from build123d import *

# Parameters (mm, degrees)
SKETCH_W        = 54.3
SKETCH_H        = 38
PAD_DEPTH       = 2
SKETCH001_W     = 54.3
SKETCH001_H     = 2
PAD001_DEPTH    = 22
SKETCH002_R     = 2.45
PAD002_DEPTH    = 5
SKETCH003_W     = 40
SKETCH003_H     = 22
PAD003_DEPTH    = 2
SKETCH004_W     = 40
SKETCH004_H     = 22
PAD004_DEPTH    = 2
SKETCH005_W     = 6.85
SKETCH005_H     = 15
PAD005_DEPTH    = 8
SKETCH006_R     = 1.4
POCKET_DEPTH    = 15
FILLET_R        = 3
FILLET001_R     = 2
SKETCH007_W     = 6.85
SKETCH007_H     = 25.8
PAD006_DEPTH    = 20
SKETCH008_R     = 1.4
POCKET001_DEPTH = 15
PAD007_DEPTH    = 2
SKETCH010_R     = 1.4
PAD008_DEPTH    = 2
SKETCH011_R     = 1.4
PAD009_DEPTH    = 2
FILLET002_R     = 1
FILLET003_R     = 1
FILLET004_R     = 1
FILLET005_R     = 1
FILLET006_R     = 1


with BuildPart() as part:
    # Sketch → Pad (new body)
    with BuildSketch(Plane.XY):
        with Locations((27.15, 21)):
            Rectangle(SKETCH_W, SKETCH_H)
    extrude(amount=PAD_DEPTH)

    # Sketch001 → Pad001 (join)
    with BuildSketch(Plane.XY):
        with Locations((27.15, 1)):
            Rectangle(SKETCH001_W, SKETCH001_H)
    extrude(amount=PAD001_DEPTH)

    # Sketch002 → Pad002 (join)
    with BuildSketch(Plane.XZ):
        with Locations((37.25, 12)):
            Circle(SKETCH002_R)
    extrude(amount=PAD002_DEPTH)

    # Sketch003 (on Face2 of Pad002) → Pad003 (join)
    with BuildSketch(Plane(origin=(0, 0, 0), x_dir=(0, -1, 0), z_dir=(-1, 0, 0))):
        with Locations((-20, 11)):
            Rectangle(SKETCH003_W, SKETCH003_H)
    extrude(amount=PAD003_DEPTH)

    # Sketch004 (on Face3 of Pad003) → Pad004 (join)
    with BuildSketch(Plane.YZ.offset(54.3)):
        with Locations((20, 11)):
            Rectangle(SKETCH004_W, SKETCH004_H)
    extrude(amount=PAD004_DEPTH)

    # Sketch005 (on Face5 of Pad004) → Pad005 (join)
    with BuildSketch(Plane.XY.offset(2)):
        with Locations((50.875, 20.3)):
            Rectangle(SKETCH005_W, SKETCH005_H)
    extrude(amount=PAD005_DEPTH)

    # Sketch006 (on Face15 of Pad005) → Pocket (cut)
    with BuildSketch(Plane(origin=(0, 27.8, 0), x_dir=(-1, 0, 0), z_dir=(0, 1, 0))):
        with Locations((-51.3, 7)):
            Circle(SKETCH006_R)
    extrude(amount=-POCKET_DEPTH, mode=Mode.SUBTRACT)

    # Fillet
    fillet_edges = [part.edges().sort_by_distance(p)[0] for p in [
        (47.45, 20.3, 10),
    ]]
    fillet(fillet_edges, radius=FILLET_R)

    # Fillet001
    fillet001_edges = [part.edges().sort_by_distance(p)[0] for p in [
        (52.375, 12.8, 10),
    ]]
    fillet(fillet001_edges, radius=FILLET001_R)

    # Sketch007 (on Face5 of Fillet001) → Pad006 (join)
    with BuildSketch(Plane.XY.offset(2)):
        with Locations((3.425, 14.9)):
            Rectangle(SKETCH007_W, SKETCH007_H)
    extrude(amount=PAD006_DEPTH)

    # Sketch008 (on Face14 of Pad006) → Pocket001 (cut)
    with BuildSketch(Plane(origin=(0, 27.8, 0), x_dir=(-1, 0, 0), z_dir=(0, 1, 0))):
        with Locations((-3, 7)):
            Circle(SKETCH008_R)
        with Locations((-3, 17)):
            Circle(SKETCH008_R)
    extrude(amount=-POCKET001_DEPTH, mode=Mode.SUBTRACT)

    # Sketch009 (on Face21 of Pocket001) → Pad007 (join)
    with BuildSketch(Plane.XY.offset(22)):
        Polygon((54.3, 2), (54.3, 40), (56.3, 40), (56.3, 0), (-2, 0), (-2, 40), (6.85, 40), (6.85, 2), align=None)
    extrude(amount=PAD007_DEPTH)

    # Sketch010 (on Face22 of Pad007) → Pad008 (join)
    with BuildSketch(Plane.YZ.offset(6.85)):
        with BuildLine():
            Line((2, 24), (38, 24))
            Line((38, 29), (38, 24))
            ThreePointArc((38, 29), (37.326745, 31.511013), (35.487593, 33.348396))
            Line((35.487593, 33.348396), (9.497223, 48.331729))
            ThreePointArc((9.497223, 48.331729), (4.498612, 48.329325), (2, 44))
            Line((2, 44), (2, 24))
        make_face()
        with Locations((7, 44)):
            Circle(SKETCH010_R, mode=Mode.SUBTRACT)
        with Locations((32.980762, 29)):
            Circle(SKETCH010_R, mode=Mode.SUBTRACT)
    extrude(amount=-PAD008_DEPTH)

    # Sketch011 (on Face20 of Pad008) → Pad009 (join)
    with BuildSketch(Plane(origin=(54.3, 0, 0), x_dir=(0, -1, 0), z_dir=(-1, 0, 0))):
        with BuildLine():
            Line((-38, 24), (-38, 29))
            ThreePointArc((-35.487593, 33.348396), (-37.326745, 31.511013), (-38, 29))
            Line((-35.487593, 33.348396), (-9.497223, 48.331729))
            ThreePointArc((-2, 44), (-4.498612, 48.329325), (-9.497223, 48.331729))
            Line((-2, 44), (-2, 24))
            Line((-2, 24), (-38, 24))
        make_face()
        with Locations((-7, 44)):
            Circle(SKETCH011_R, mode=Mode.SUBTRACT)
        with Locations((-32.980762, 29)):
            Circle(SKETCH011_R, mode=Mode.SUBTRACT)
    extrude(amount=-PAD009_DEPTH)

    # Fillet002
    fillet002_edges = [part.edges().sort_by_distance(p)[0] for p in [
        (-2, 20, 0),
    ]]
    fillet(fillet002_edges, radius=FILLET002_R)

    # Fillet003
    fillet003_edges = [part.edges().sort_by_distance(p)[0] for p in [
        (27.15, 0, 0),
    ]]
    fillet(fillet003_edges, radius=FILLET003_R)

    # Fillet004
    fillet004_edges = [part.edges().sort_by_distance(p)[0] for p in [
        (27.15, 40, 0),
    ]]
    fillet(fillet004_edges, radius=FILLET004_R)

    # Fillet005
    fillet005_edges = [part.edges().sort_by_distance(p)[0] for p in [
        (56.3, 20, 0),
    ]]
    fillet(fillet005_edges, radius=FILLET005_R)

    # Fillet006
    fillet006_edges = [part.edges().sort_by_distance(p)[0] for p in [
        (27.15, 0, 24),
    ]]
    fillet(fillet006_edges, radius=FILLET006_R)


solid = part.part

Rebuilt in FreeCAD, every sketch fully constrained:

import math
import FreeCAD as App
import Part
import Sketcher

V = App.Vector


def edges_at(feature, points):
    """Names of the edges that pass closest to the given points."""
    edges = feature.Shape.Edges
    near = lambda p: min(range(len(edges)), key=lambda i: edges[i].distToShape(Part.Vertex(*p))[0])
    return sorted({f"Edge{near(p) + 1}" for p in points})


def add_polygon(sketch, points):
    """Adds a closed chain of lines whose ends are joined by coincident constraints."""
    first, n = sketch.GeometryCount, len(points)
    for a, b in zip(points, points[1:] + points[:1]):
        sketch.addGeometry(Part.LineSegment(App.Vector(*a, 0), App.Vector(*b, 0)), False)
    for i in range(n):
        sketch.addConstraint(Sketcher.Constraint("Coincident", first + i, 2, first + (i + 1) % n, 1))

doc = App.newDocument("Part")
body = doc.addObject("PartDesign::Body", "Body")

# Sketch on XY plane
sketch1 = body.newObject("Sketcher::SketchObject", "Sketch")
sketch1.AttachmentSupport = (doc.getObject("XY_Plane"), [""])
sketch1.MapMode = "FlatFace"
add_polygon(sketch1, [(0, 40), (0, 2), (54, 2), (54, 40)])  # lines 0-3
sketch1.addConstraint(Sketcher.Constraint("Vertical", 0))
sketch1.addConstraint(Sketcher.Constraint("Horizontal", 1))
sketch1.addConstraint(Sketcher.Constraint("Vertical", 2))
sketch1.addConstraint(Sketcher.Constraint("Horizontal", 3))
sketch1.addConstraint(Sketcher.Constraint("PointOnObject", 0, 2, -2))
sketch1.addConstraint(Sketcher.Constraint("DistanceY", 0, 2, 0, 1, 38.0))
sketch1.addConstraint(Sketcher.Constraint("DistanceX", 1, 1, 1, 2, 54.3))
sketch1.addConstraint(Sketcher.Constraint("DistanceY", -1, 1, 0, 2, 2.0))
pad1 = body.newObject("PartDesign::Pad", "Pad")
pad1.Profile = sketch1
pad1.Length = 2

# Sketch on XY plane
sketch2 = body.newObject("Sketcher::SketchObject", "Sketch001")
sketch2.AttachmentSupport = (doc.getObject("XY_Plane"), [""])
sketch2.MapMode = "FlatFace"
add_polygon(sketch2, [(0, 2), (0, 0), (54.3, 0), (54.3, 2)])  # lines 0-3
sketch2.addConstraint(Sketcher.Constraint("Vertical", 0))
sketch2.addConstraint(Sketcher.Constraint("Horizontal", 1))
sketch2.addConstraint(Sketcher.Constraint("Vertical", 2))
sketch2.addConstraint(Sketcher.Constraint("Horizontal", 3))
sketch2.addConstraint(Sketcher.Constraint("Coincident", 0, 2, -1, 1))
sketch2.addConstraint(Sketcher.Constraint("DistanceY", 0, 2, 0, 1, 2.0))
sketch2.addConstraint(Sketcher.Constraint("DistanceX", 1, 1, 1, 2, 54.3))
pad2 = body.newObject("PartDesign::Pad", "Pad001")
pad2.Profile = sketch2
pad2.Length = 22

# Sketch on XZ plane
sketch3 = body.newObject("Sketcher::SketchObject", "Sketch002")
sketch3.AttachmentSupport = (doc.getObject("XZ_Plane"), [""])
sketch3.MapMode = "FlatFace"
sketch3.addGeometry(Part.Circle(V(37.2, 12, 0), V(0, 0, 1), 2.5), False)
sketch3.addConstraint(Sketcher.Constraint("Diameter", 0, 4.9))
sketch3.addConstraint(Sketcher.Constraint("DistanceY", -1, 1, 0, 3, 12.0))
sketch3.addConstraint(Sketcher.Constraint("DistanceX", -1, 1, 0, 3, 37.25))
pad3 = body.newObject("PartDesign::Pad", "Pad002")
pad3.Profile = sketch3
pad3.Length = 5

# Sketch on YZ plane
sketch4 = body.newObject("Sketcher::SketchObject", "Sketch003")
sketch4.AttachmentSupport = (doc.getObject("YZ_Plane"), [""])
sketch4.MapMode = "FlatFace"
add_polygon(sketch4, [(40, 22), (40, 0), (0, 0), (0, 22)])  # lines 0-3
sketch4.addConstraint(Sketcher.Constraint("Vertical", 0))
sketch4.addConstraint(Sketcher.Constraint("Horizontal", 1))
sketch4.addConstraint(Sketcher.Constraint("Vertical", 2))
sketch4.addConstraint(Sketcher.Constraint("Horizontal", 3))
sketch4.addConstraint(Sketcher.Constraint("Coincident", 1, 2, -1, 1))
sketch4.addConstraint(Sketcher.Constraint("DistanceX", 1, 2, 1, 1, 40.0))
sketch4.addConstraint(Sketcher.Constraint("DistanceY", 0, 2, 0, 1, 22.0))
pad4 = body.newObject("PartDesign::Pad", "Pad003")
pad4.Profile = sketch4
pad4.Length = 2
pad4.Reversed = True

# Sketch on YZ plane
sketch5 = body.newObject("Sketcher::SketchObject", "Sketch004")
sketch5.AttachmentSupport = (doc.getObject("YZ_Plane"), [""])
sketch5.MapMode = "FlatFace"
sketch5.AttachmentOffset = App.Placement(V(0, 0, 54.3), App.Rotation())
add_polygon(sketch5, [(0, 22), (0, 0), (40, 0), (40, 22)])  # lines 0-3
sketch5.addConstraint(Sketcher.Constraint("Vertical", 0))
sketch5.addConstraint(Sketcher.Constraint("Horizontal", 1))
sketch5.addConstraint(Sketcher.Constraint("Vertical", 2))
sketch5.addConstraint(Sketcher.Constraint("Horizontal", 3))
sketch5.addConstraint(Sketcher.Constraint("Coincident", 0, 2, -1, 1))
sketch5.addConstraint(Sketcher.Constraint("DistanceX", 1, 1, 1, 2, 40.0))
sketch5.addConstraint(Sketcher.Constraint("DistanceY", 0, 2, 0, 1, 22.0))
pad5 = body.newObject("PartDesign::Pad", "Pad004")
pad5.Profile = sketch5
pad5.Length = 2

# Sketch on XY plane
sketch6 = body.newObject("Sketcher::SketchObject", "Sketch005")
sketch6.AttachmentSupport = (doc.getObject("XY_Plane"), [""])
sketch6.MapMode = "FlatFace"
sketch6.AttachmentOffset = App.Placement(V(0, 0, 2), App.Rotation())
add_polygon(sketch6, [(47, 28), (47, 13), (54, 13), (54, 28)])  # lines 0-3
sketch6.addConstraint(Sketcher.Constraint("Vertical", 0))
sketch6.addConstraint(Sketcher.Constraint("Horizontal", 1))
sketch6.addConstraint(Sketcher.Constraint("Vertical", 2))
sketch6.addConstraint(Sketcher.Constraint("Horizontal", 3))
sketch6.addConstraint(Sketcher.Constraint("DistanceY", 0, 2, 0, 1, 15.0))
sketch6.addConstraint(Sketcher.Constraint("DistanceX", 1, 1, 1, 2, 6.85))
sketch6.addConstraint(Sketcher.Constraint("DistanceY", -1, 1, 0, 2, 12.8))
sketch6.addConstraint(Sketcher.Constraint("DistanceX", -1, 1, 1, 2, 54.3))
pad6 = body.newObject("PartDesign::Pad", "Pad005")
pad6.Profile = sketch6
pad6.Length = 8

# Sketch on XZ plane
sketch7 = body.newObject("Sketcher::SketchObject", "Sketch006")
sketch7.AttachmentSupport = (doc.getObject("XZ_Plane"), [""])
sketch7.MapMode = "FlatFace"
sketch7.AttachmentOffset = App.Placement(V(0, 0, -27.8), App.Rotation())
sketch7.addGeometry(Part.Circle(V(51.3, 7, 0), V(0, 0, 1), 1.4), False)
sketch7.addConstraint(Sketcher.Constraint("Diameter", 0, 2.8))
sketch7.addConstraint(Sketcher.Constraint("DistanceY", -1, 1, 0, 3, 7.0))
sketch7.addConstraint(Sketcher.Constraint("DistanceX", -1, 1, 0, 3, 51.3))
pocket1 = body.newObject("PartDesign::Pocket", "Pocket")
pocket1.Profile = sketch7
pocket1.Length = 15
pocket1.Reversed = True
doc.recompute()

fillet = body.newObject("PartDesign::Fillet", "Fillet")
fillet.Base = (pocket1, edges_at(pocket1, [(47.45, 20.3, 10)]))
fillet.Radius = 3
doc.recompute()

fillet2 = body.newObject("PartDesign::Fillet", "Fillet001")
fillet2.Base = (fillet, edges_at(fillet, [(52.375, 12.8, 10)]))
fillet2.Radius = 2

# Sketch on XY plane
sketch8 = body.newObject("Sketcher::SketchObject", "Sketch007")
sketch8.AttachmentSupport = (doc.getObject("XY_Plane"), [""])
sketch8.MapMode = "FlatFace"
sketch8.AttachmentOffset = App.Placement(V(0, 0, 2), App.Rotation())
add_polygon(sketch8, [(0, 28), (0, 2), (7, 2), (7, 28)])  # lines 0-3
sketch8.addConstraint(Sketcher.Constraint("Vertical", 0))
sketch8.addConstraint(Sketcher.Constraint("Horizontal", 1))
sketch8.addConstraint(Sketcher.Constraint("Vertical", 2))
sketch8.addConstraint(Sketcher.Constraint("Horizontal", 3))
sketch8.addConstraint(Sketcher.Constraint("PointOnObject", 0, 2, -2))
sketch8.addConstraint(Sketcher.Constraint("DistanceY", 0, 2, 0, 1, 25.8))
sketch8.addConstraint(Sketcher.Constraint("DistanceY", -1, 1, 0, 2, 2.0))
sketch8.addConstraint(Sketcher.Constraint("DistanceX", 1, 1, 1, 2, 6.85))
pad7 = body.newObject("PartDesign::Pad", "Pad006")
pad7.Profile = sketch8
pad7.Length = 20

# Sketch on XZ plane
sketch9 = body.newObject("Sketcher::SketchObject", "Sketch008")
sketch9.AttachmentSupport = (doc.getObject("XZ_Plane"), [""])
sketch9.MapMode = "FlatFace"
sketch9.AttachmentOffset = App.Placement(V(0, 0, -27.8), App.Rotation())
sketch9.addGeometry(Part.Circle(V(3, 7, 0), V(0, 0, 1), 1.4), False)
sketch9.addGeometry(Part.Circle(V(3, 17, 0), V(0, 0, 1), 1.4), False)
sketch9.addConstraint(Sketcher.Constraint("Equal", 0, 1))
sketch9.addConstraint(Sketcher.Constraint("Vertical", 0, 3, 1, 3))
sketch9.addConstraint(Sketcher.Constraint("Diameter", 0, 2.8))
sketch9.addConstraint(Sketcher.Constraint("DistanceX", -1, 1, 0, 3, 3.0))
sketch9.addConstraint(Sketcher.Constraint("DistanceY", -1, 1, 0, 3, 7.0))
sketch9.addConstraint(Sketcher.Constraint("DistanceY", -1, 1, 1, 3, 17.0))
pocket2 = body.newObject("PartDesign::Pocket", "Pocket001")
pocket2.Profile = sketch9
pocket2.Length = 15
pocket2.Reversed = True

# Sketch on XY plane
sketch10 = body.newObject("Sketcher::SketchObject", "Sketch009")
sketch10.AttachmentSupport = (doc.getObject("XY_Plane"), [""])
sketch10.MapMode = "FlatFace"
sketch10.AttachmentOffset = App.Placement(V(0, 0, 22), App.Rotation())
add_polygon(sketch10, [(54.3, 40), (54.3, 2), (6.8, 2), (6.8, 40), (-2, 40), (-2, 0), (56.3, 0), (56.3, 40)])  # lines 0-7
sketch10.addConstraint(Sketcher.Constraint("Vertical", 0))
sketch10.addConstraint(Sketcher.Constraint("Horizontal", 1))
sketch10.addConstraint(Sketcher.Constraint("Vertical", 2))
sketch10.addConstraint(Sketcher.Constraint("Horizontal", 3))
sketch10.addConstraint(Sketcher.Constraint("Vertical", 4))
sketch10.addConstraint(Sketcher.Constraint("Horizontal", 5))
sketch10.addConstraint(Sketcher.Constraint("Vertical", 6))
sketch10.addConstraint(Sketcher.Constraint("Horizontal", 7))
sketch10.addConstraint(Sketcher.Constraint("PointOnObject", 4, 2, -1))
sketch10.addConstraint(Sketcher.Constraint("Horizontal", 3, 2, 6, 2))
sketch10.addConstraint(Sketcher.Constraint("DistanceX", 7, 2, 7, 1, 2.0))
sketch10.addConstraint(Sketcher.Constraint("DistanceY", 0, 2, 0, 1, 38.0))
sketch10.addConstraint(Sketcher.Constraint("DistanceY", 4, 2, 4, 1, 40.0))
sketch10.addConstraint(Sketcher.Constraint("DistanceX", 5, 1, 5, 2, 58.3))
sketch10.addConstraint(Sketcher.Constraint("DistanceX", 3, 2, -1, 1, 2.0))
sketch10.addConstraint(Sketcher.Constraint("DistanceX", 1, 2, 1, 1, 47.45))
pad8 = body.newObject("PartDesign::Pad", "Pad007")
pad8.Profile = sketch10
pad8.Length = 2

# Sketch on YZ plane
sketch11 = body.newObject("Sketcher::SketchObject", "Sketch010")
sketch11.AttachmentSupport = (doc.getObject("YZ_Plane"), [""])
sketch11.MapMode = "FlatFace"
sketch11.AttachmentOffset = App.Placement(V(0, 0, 6.85), App.Rotation())
sketch11.addGeometry(Part.LineSegment(V(2, 24, 0), V(38, 24, 0)), False)
sketch11.addGeometry(Part.LineSegment(V(38, 24, 0), V(38, 29, 0)), False)
sketch11.addGeometry(Part.ArcOfCircle(Part.Circle(V(33, 29, 0), V(0, 0, 1), 5), math.radians(0), math.radians(60)), False)
sketch11.addGeometry(Part.LineSegment(V(35.5, 33.3, 0), V(9.5, 48.3, 0)), False)
sketch11.addGeometry(Part.ArcOfCircle(Part.Circle(V(7, 44, 0), V(0, 0, 1), 5), math.radians(60), math.radians(180)), False)
sketch11.addGeometry(Part.LineSegment(V(2, 44, 0), V(2, 24, 0)), False)
sketch11.addGeometry(Part.Circle(V(33, 29, 0), V(0, 0, 1), 1.4), False)
sketch11.addGeometry(Part.Circle(V(7, 44, 0), V(0, 0, 1), 1.4), False)
sketch11.addConstraint(Sketcher.Constraint("Coincident", 0, 2, 1, 1))
sketch11.addConstraint(Sketcher.Constraint("Tangent", 1, 2, 2, 1))
sketch11.addConstraint(Sketcher.Constraint("Tangent", 2, 2, 3, 1))
sketch11.addConstraint(Sketcher.Constraint("Tangent", 3, 2, 4, 1))
sketch11.addConstraint(Sketcher.Constraint("Tangent", 4, 2, 5, 1))
sketch11.addConstraint(Sketcher.Constraint("Coincident", 5, 2, 0, 1))
sketch11.addConstraint(Sketcher.Constraint("Horizontal", 0))
sketch11.addConstraint(Sketcher.Constraint("Vertical", 1))
sketch11.addConstraint(Sketcher.Constraint("Vertical", 5))
sketch11.addConstraint(Sketcher.Constraint("Coincident", 6, 3, 2, 3))
sketch11.addConstraint(Sketcher.Constraint("Coincident", 7, 3, 4, 3))
sketch11.addConstraint(Sketcher.Constraint("Equal", 6, 7))
sketch11.addConstraint(Sketcher.Constraint("Radius", 4, 5.0))
sketch11.addConstraint(Sketcher.Constraint("Diameter", 6, 2.8))
sketch11.addConstraint(Sketcher.Constraint("DistanceX", 0, 1, 0, 2, 36.0))
sketch11.addConstraint(Sketcher.Constraint("DistanceY", 1, 1, 1, 2, 5.0))
sketch11.addConstraint(Sketcher.Constraint("DistanceY", 5, 2, 5, 1, 20.0))
sketch11.addConstraint(Sketcher.Constraint("DistanceY", -1, 1, 2, 3, 29.000002))
sketch11.addConstraint(Sketcher.Constraint("DistanceX", -1, 1, 4, 3, 7.0))
sketch11.addConstraint(Sketcher.Constraint("Radius", 2, 5.019235))
pad9 = body.newObject("PartDesign::Pad", "Pad008")
pad9.Profile = sketch11
pad9.Length = 2
pad9.Reversed = True

# Sketch on YZ plane
sketch12 = body.newObject("Sketcher::SketchObject", "Sketch011")
sketch12.AttachmentSupport = (doc.getObject("YZ_Plane"), [""])
sketch12.MapMode = "FlatFace"
sketch12.AttachmentOffset = App.Placement(V(0, 0, 54.3), App.Rotation())
sketch12.addGeometry(Part.LineSegment(V(38, 29, 0), V(38, 24, 0)), False)
sketch12.addGeometry(Part.LineSegment(V(38, 24, 0), V(2, 24, 0)), False)
sketch12.addGeometry(Part.LineSegment(V(2, 24, 0), V(2, 44, 0)), False)
sketch12.addGeometry(Part.ArcOfCircle(Part.Circle(V(7, 44, 0), V(0, 0, 1), 5), math.radians(60), math.radians(180)), False)
sketch12.addGeometry(Part.LineSegment(V(9.5, 48.3, 0), V(35.5, 33.3, 0)), False)
sketch12.addGeometry(Part.ArcOfCircle(Part.Circle(V(33, 29, 0), V(0, 0, 1), 5), math.radians(0), math.radians(60)), False)
sketch12.addGeometry(Part.Circle(V(33, 29, 0), V(0, 0, 1), 1.4), False)
sketch12.addGeometry(Part.Circle(V(7, 44, 0), V(0, 0, 1), 1.4), False)
sketch12.addConstraint(Sketcher.Constraint("Coincident", 0, 2, 1, 1))
sketch12.addConstraint(Sketcher.Constraint("Coincident", 1, 2, 2, 1))
sketch12.addConstraint(Sketcher.Constraint("Tangent", 2, 2, 3, 2))
sketch12.addConstraint(Sketcher.Constraint("Tangent", 3, 1, 4, 1))
sketch12.addConstraint(Sketcher.Constraint("Tangent", 4, 2, 5, 2))
sketch12.addConstraint(Sketcher.Constraint("Tangent", 5, 1, 0, 1))
sketch12.addConstraint(Sketcher.Constraint("Vertical", 0))
sketch12.addConstraint(Sketcher.Constraint("Horizontal", 1))
sketch12.addConstraint(Sketcher.Constraint("Vertical", 2))
sketch12.addConstraint(Sketcher.Constraint("Coincident", 6, 3, 5, 3))
sketch12.addConstraint(Sketcher.Constraint("Coincident", 7, 3, 3, 3))
sketch12.addConstraint(Sketcher.Constraint("Equal", 6, 7))
sketch12.addConstraint(Sketcher.Constraint("Radius", 3, 5.0))
sketch12.addConstraint(Sketcher.Constraint("Diameter", 6, 2.8))
sketch12.addConstraint(Sketcher.Constraint("DistanceX", 1, 2, 1, 1, 36.0))
sketch12.addConstraint(Sketcher.Constraint("DistanceY", 0, 2, 0, 1, 5.0))
sketch12.addConstraint(Sketcher.Constraint("DistanceY", 2, 1, 2, 2, 20.0))
sketch12.addConstraint(Sketcher.Constraint("DistanceX", -1, 1, 3, 3, 7.0))
sketch12.addConstraint(Sketcher.Constraint("DistanceY", -1, 1, 3, 3, 44.0))
sketch12.addConstraint(Sketcher.Constraint("Radius", 5, 5.019235))
pad10 = body.newObject("PartDesign::Pad", "Pad009")
pad10.Profile = sketch12
pad10.Length = 2
doc.recompute()

fillet3 = body.newObject("PartDesign::Fillet", "Fillet002")
fillet3.Base = (pad10, edges_at(pad10, [(-2, 20, 0)]))
fillet3.Radius = 1
doc.recompute()

fillet4 = body.newObject("PartDesign::Fillet", "Fillet003")
fillet4.Base = (fillet3, edges_at(fillet3, [(27.65, 0, 0)]))
fillet4.Radius = 1
doc.recompute()

fillet5 = body.newObject("PartDesign::Fillet", "Fillet004")
fillet5.Base = (fillet4, edges_at(fillet4, [(27.65, 40, 0)]))
fillet5.Radius = 1
doc.recompute()

fillet6 = body.newObject("PartDesign::Fillet", "Fillet005")
fillet6.Base = (fillet5, edges_at(fillet5, [(56.3, 20, 0)]))
fillet6.Radius = 1
doc.recompute()

fillet7 = body.newObject("PartDesign::Fillet", "Fillet006")
fillet7.Base = (fillet6, edges_at(fillet6, [(27.15, 0, 24)]))
fillet7.Radius = 1

doc.recompute()
